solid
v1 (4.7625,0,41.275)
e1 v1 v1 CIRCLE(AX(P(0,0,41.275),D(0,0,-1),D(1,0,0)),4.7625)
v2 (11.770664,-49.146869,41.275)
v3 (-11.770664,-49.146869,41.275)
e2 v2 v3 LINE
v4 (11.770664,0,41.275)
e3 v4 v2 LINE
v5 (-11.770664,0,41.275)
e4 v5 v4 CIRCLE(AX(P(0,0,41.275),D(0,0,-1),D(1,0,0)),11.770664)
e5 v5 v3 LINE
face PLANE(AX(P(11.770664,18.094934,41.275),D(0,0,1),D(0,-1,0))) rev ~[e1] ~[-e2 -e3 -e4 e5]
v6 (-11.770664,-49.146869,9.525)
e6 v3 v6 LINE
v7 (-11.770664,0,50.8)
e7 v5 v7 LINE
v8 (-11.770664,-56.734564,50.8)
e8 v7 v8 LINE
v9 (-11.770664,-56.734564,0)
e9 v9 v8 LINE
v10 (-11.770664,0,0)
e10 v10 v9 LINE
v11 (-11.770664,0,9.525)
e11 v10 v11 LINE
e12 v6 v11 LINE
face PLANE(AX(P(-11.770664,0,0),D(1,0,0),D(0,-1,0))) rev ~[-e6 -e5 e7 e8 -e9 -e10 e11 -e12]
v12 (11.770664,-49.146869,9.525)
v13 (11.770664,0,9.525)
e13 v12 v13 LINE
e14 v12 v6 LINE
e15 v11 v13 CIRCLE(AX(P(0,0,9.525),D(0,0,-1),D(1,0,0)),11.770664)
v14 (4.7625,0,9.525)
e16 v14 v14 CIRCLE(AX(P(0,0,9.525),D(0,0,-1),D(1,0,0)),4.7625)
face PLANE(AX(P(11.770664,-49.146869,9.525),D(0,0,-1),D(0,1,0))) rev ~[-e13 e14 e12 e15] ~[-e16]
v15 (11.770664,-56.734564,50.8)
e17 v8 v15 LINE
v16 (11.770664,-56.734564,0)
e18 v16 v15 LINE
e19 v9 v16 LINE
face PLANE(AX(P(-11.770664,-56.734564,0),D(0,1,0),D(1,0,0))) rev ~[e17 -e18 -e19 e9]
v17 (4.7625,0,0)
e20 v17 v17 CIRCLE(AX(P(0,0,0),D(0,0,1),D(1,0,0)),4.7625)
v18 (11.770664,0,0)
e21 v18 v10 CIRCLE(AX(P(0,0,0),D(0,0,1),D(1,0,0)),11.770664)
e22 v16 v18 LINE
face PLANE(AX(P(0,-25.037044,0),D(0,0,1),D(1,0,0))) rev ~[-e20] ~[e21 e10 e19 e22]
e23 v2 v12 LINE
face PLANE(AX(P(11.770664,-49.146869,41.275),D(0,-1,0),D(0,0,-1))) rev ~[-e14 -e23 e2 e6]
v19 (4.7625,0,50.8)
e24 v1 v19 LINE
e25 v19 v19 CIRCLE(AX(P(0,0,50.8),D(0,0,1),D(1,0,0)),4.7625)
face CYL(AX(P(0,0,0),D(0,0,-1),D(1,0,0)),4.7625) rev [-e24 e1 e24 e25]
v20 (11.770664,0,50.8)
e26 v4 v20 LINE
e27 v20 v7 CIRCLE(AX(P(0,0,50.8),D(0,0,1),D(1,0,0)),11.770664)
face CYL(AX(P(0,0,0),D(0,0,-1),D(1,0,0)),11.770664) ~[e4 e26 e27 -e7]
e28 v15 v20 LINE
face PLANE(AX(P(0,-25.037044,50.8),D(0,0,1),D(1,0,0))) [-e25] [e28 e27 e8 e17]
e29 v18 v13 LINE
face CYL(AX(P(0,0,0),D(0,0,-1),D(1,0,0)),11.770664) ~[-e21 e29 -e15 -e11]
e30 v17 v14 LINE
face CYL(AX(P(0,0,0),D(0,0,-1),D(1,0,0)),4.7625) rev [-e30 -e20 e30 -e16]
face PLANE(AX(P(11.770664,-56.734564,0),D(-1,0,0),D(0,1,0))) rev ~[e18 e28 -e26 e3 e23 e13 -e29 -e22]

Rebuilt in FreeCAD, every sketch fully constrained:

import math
import FreeCAD as App
import Part
import Sketcher
from FreeCAD import Vector
Q = App.Units.Quantity


def add_polygon(sketch, points):
    """Adds a closed chain of lines whose ends are joined by coincident constraints."""
    first, n = sketch.GeometryCount, len(points)
    for a, b in zip(points, points[1:] + points[:1]):
        sketch.addGeometry(Part.LineSegment(App.Vector(*a, 0), App.Vector(*b, 0)), False)
    for i in range(n):
        sketch.addConstraint(Sketcher.Constraint("Coincident", first + i, 2, first + (i + 1) % n, 1))

doc = App.newDocument("Part")
body = doc.addObject("PartDesign::Body", "Body")

sketch1 = body.newObject("Sketcher::SketchObject", "Sketch")
sketch1.AttachmentSupport = (doc.getObject("XY_Plane"), [""])
sketch1.MapMode = "FlatFace"
sketch1.addGeometry([
    Part.LineSegment(Vector(-11.770664, 0, 0), Vector(-11.770664, -56.734564, 0)),
    Part.LineSegment(Vector(-11.770664, -56.734564, 0), Vector(11.770664, -56.734564, 0)),
    Part.LineSegment(Vector(11.770664, -56.734564, 0), Vector(11.770664, 0, 0)),
    Part.ArcOfCircle(Part.Circle(Vector(0, 0, 0), Vector(0, 0, 1), 11.770664), math.radians(0), math.radians(180)),
    Part.Circle(Vector(0, 0, 0), Vector(0, 0, 1), 4.7625),
], False)
sketch1.addConstraint([
    Sketcher.Constraint("Coincident", 0, 2, 1, 1),
    Sketcher.Constraint("Coincident", 1, 2, 2, 1),
    Sketcher.Constraint("Tangent", 2, 2, 3, 1),
    Sketcher.Constraint("Tangent", 3, 2, 0, 1),
    Sketcher.Constraint("Vertical", 0),
    Sketcher.Constraint("Horizontal", 1),
    Sketcher.Constraint("Vertical", 2),
    Sketcher.Constraint("Coincident", 3, 3, -1, 1),
    Sketcher.Constraint("Coincident", 4, 3, -1, 1),
    Sketcher.Constraint("Diameter", 4, Q("0.375 in")),
    Sketcher.Constraint("Radius", 3, Q("11.770664 mm")),
    Sketcher.Constraint("DistanceY", 0, 2, 0, 1, Q("56.734564 mm")),
])
pad1 = body.newObject("PartDesign::Pad", "Pad")
pad1.Profile = sketch1
pad1.Length = Q("2 in")

sketch2 = body.newObject("Sketcher::SketchObject", "Sketch001")
sketch2.AttachmentSupport = (doc.getObject("YZ_Plane"), [""])
sketch2.MapMode = "FlatFace"
sketch2.AttachmentOffset = App.Placement(Vector(0, 0, 11.770664), App.Rotation())
add_polygon(sketch2, [(-49.146869, 41.275), (-49.146869, 9.525), (18.094934, 9.525), (18.094934, 41.275)])
sketch2.addConstraint([
    Sketcher.Constraint("Vertical", 0),
    Sketcher.Constraint("Horizontal", 1),
    Sketcher.Constraint("Vertical", 2),
    Sketcher.Constraint("Horizontal", 3),
    Sketcher.Constraint("DistanceY", 0, 2, 0, 1, Q("1.25 in")),
    Sketcher.Constraint("DistanceY", -1, 1, 0, 2, Q("0.375 in")),
    Sketcher.Constraint("DistanceX", 1, 1, 1, 2, Q("67.241803 mm")),
    Sketcher.Constraint("DistanceX", 0, 2, -1, 1, Q("49.146869 mm")),
])
pocket1 = body.newObject("PartDesign::Pocket", "Pocket")
pocket1.Profile = sketch2
pocket1.Type = "ThroughAll"

doc.recompute()
